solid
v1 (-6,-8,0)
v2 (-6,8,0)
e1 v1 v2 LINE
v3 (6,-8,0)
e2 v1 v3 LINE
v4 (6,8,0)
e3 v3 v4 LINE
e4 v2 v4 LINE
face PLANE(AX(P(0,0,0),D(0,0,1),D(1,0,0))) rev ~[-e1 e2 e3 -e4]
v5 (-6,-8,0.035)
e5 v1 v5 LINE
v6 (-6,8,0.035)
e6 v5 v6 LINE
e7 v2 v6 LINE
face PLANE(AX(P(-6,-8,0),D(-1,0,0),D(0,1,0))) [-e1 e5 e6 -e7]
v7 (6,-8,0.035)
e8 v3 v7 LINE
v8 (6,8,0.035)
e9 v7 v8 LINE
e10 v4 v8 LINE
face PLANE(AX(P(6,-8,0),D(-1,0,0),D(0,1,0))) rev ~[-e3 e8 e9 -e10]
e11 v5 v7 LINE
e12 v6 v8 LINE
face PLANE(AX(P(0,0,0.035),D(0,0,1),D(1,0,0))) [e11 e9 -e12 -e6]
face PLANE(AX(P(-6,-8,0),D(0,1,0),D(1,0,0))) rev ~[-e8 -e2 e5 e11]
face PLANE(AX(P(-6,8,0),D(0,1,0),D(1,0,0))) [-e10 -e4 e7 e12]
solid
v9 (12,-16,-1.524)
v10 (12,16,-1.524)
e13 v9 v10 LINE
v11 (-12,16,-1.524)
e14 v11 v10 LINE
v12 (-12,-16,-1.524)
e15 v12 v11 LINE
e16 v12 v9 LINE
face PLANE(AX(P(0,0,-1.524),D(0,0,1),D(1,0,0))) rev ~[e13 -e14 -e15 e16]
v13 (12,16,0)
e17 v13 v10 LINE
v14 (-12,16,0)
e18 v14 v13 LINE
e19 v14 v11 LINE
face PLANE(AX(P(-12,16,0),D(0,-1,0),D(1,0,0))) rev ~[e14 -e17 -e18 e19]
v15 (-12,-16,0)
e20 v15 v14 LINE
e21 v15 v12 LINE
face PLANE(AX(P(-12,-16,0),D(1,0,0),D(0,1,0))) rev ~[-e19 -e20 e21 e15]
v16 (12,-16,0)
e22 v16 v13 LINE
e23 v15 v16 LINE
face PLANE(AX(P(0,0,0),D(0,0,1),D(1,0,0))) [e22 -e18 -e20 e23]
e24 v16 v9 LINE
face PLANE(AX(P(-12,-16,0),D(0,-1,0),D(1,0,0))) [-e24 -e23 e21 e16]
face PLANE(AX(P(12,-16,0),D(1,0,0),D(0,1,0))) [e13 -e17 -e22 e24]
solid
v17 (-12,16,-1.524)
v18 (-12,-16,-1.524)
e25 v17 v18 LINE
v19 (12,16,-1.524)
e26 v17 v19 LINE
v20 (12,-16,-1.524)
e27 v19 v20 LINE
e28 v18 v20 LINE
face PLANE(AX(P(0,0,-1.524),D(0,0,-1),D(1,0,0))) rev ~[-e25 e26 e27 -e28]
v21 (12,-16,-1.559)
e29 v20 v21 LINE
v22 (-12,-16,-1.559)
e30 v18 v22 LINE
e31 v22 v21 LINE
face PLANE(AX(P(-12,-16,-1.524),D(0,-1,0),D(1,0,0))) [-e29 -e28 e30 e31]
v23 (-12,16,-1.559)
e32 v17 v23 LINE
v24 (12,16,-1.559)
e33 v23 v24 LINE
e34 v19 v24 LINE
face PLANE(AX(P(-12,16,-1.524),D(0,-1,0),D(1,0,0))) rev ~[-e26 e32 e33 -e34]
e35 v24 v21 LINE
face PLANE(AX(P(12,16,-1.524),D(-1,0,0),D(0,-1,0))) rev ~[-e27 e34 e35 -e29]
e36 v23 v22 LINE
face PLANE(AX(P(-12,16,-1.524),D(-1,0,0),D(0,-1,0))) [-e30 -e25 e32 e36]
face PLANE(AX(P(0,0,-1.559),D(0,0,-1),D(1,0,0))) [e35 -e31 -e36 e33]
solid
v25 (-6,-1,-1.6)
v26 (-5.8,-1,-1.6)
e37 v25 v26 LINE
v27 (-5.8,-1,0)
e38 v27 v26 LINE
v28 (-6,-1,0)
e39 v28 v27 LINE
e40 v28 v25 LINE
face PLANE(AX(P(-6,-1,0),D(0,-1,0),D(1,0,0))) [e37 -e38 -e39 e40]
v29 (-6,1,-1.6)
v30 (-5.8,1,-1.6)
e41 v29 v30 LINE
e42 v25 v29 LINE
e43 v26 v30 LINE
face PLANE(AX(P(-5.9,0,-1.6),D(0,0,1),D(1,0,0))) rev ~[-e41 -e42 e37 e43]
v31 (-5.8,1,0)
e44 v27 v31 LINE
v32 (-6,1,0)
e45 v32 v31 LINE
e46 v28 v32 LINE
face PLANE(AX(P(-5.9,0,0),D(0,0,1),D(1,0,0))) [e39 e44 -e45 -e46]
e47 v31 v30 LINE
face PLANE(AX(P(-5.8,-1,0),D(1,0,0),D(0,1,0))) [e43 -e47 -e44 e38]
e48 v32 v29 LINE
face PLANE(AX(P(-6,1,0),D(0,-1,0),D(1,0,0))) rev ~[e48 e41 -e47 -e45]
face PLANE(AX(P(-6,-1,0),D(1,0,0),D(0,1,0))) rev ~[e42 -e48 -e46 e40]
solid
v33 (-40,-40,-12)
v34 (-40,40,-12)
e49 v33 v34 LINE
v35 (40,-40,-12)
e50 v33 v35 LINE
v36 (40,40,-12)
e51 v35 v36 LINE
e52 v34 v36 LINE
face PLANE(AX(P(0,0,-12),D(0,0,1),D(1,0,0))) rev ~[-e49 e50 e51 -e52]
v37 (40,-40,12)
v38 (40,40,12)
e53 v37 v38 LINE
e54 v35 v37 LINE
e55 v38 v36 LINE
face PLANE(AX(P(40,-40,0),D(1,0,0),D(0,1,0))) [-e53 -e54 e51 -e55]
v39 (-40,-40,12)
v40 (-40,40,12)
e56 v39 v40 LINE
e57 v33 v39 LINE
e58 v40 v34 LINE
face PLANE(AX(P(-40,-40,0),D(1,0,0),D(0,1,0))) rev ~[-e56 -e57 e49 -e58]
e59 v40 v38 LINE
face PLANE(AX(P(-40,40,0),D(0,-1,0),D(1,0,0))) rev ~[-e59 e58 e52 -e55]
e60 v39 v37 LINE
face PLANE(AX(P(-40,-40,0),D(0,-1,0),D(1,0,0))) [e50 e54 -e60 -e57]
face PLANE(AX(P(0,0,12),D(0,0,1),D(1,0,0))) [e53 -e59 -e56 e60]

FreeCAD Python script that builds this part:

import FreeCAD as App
import Part
import Sketcher
Q = App.Units.Quantity

doc = App.newDocument("Part")
body = doc.addObject("PartDesign::Body", "Body")

sketch1 = body.newObject("Sketcher::SketchObject", "Sketch")
sketch1.AttachmentSupport = (doc.getObject("XY_Plane"), [""])
sketch1.MapMode = "FlatFace"
sketch1.addGeometry(Part.LineSegment(App.Vector(-6, 8, 0), App.Vector(-6, -8, 0)), False)
sketch1.addGeometry(Part.LineSegment(App.Vector(-6, -8, 0), App.Vector(6, -8, 0)), False)
sketch1.addGeometry(Part.LineSegment(App.Vector(6, -8, 0), App.Vector(6, 8, 0)), False)
sketch1.addGeometry(Part.LineSegment(App.Vector(6, 8, 0), App.Vector(-6, 8, 0)), False)
sketch1.addConstraint(Sketcher.Constraint("Coincident", 0, 2, 1, 1))
sketch1.addConstraint(Sketcher.Constraint("Coincident", 1, 2, 2, 1))
sketch1.addConstraint(Sketcher.Constraint("Coincident", 2, 2, 3, 1))
sketch1.addConstraint(Sketcher.Constraint("Coincident", 3, 2, 0, 1))
sketch1.addConstraint(Sketcher.Constraint("Vertical", 0))
sketch1.addConstraint(Sketcher.Constraint("Horizontal", 1))
sketch1.addConstraint(Sketcher.Constraint("Vertical", 2))
sketch1.addConstraint(Sketcher.Constraint("Horizontal", 3))
sketch1.addConstraint(Sketcher.Constraint("Symmetric", 0, 2, 2, 2, -1, 1))
sketch1.addConstraint(Sketcher.Constraint("DistanceX", 1, 1, 1, 2, Q("12 mm")))
sketch1.addConstraint(Sketcher.Constraint("DistanceY", 0, 2, 0, 1, Q("16 mm")))
pad1 = body.newObject("PartDesign::Pad", "Pad")
pad1.Profile = sketch1
pad1.Length = 0.035
body2 = doc.addObject("PartDesign::Body", "Body001")

sketch2 = body2.newObject("Sketcher::SketchObject", "Sketch001")
sketch2.AttachmentSupport = (doc.getObject("XY_Plane001"), [""])
sketch2.MapMode = "FlatFace"
sketch2.addGeometry(Part.LineSegment(App.Vector(-12, 16, 0), App.Vector(-12, -16, 0)), False)
sketch2.addGeometry(Part.LineSegment(App.Vector(-12, -16, 0), App.Vector(12, -16, 0)), False)
sketch2.addGeometry(Part.LineSegment(App.Vector(12, -16, 0), App.Vector(12, 16, 0)), False)
sketch2.addGeometry(Part.LineSegment(App.Vector(12, 16, 0), App.Vector(-12, 16, 0)), False)
sketch2.addConstraint(Sketcher.Constraint("Coincident", 0, 2, 1, 1))
sketch2.addConstraint(Sketcher.Constraint("Coincident", 1, 2, 2, 1))
sketch2.addConstraint(Sketcher.Constraint("Coincident", 2, 2, 3, 1))
sketch2.addConstraint(Sketcher.Constraint("Coincident", 3, 2, 0, 1))
sketch2.addConstraint(Sketcher.Constraint("Vertical", 0))
sketch2.addConstraint(Sketcher.Constraint("Horizontal", 1))
sketch2.addConstraint(Sketcher.Constraint("Vertical", 2))
sketch2.addConstraint(Sketcher.Constraint("Horizontal", 3))
sketch2.addConstraint(Sketcher.Constraint("Symmetric", 0, 2, 2, 2, -1, 1))
sketch2.addConstraint(Sketcher.Constraint("DistanceX", 1, 1, 1, 2, Q("24 mm")))
sketch2.addConstraint(Sketcher.Constraint("DistanceY", 0, 2, 0, 1, Q("32 mm")))
pad2 = body2.newObject("PartDesign::Pad", "Pad001")
pad2.Profile = sketch2
pad2.Length = 1.524
pad2.Reversed = True
body3 = doc.addObject("PartDesign::Body", "Body002")

sketch3 = body3.newObject("Sketcher::SketchObject", "Sketch002")
sketch3.AttachmentSupport = (doc.getObject("XY_Plane002"), [""])
sketch3.MapMode = "FlatFace"
sketch3.AttachmentOffset = App.Placement(App.Vector(0, 0, -1.524), App.Rotation())
sketch3.addGeometry(Part.LineSegment(App.Vector(-12, -16, 0), App.Vector(-12, 16, 0)), False)
sketch3.addGeometry(Part.LineSegment(App.Vector(-12, 16, 0), App.Vector(12, 16, 0)), False)
sketch3.addGeometry(Part.LineSegment(App.Vector(12, 16, 0), App.Vector(12, -16, 0)), False)
sketch3.addGeometry(Part.LineSegment(App.Vector(12, -16, 0), App.Vector(-12, -16, 0)), False)
sketch3.addConstraint(Sketcher.Constraint("Coincident", 0, 2, 1, 1))
sketch3.addConstraint(Sketcher.Constraint("Coincident", 1, 2, 2, 1))
sketch3.addConstraint(Sketcher.Constraint("Coincident", 2, 2, 3, 1))
sketch3.addConstraint(Sketcher.Constraint("Coincident", 3, 2, 0, 1))
sketch3.addConstraint(Sketcher.Constraint("Vertical", 0))
sketch3.addConstraint(Sketcher.Constraint("Horizontal", 1))
sketch3.addConstraint(Sketcher.Constraint("Vertical", 2))
sketch3.addConstraint(Sketcher.Constraint("Horizontal", 3))
sketch3.addConstraint(Sketcher.Constraint("Symmetric", 0, 2, 2, 2, -1, 1))
sketch3.addConstraint(Sketcher.Constraint("DistanceX", 1, 1, 1, 2, Q("24 mm")))
sketch3.addConstraint(Sketcher.Constraint("DistanceY", 0, 1, 0, 2, Q("32 mm")))
pad3 = body3.newObject("PartDesign::Pad", "Pad002")
pad3.Profile = sketch3
pad3.Length = 0.035
pad3.Reversed = True
body4 = doc.addObject("PartDesign::Body", "Body003")

sketch4 = body4.newObject("Sketcher::SketchObject", "Sketch003")
sketch4.AttachmentSupport = (doc.getObject("XY_Plane003"), [""])
sketch4.MapMode = "FlatFace"
sketch4.addGeometry(Part.LineSegment(App.Vector(-6, 1, 0), App.Vector(-6, -1, 0)), False)
sketch4.addGeometry(Part.LineSegment(App.Vector(-6, -1, 0), App.Vector(-5.8, -1, 0)), False)
sketch4.addGeometry(Part.LineSegment(App.Vector(-5.8, -1, 0), App.Vector(-5.8, 1, 0)), False)
sketch4.addGeometry(Part.LineSegment(App.Vector(-5.8, 1, 0), App.Vector(-6, 1, 0)), False)
sketch4.addConstraint(Sketcher.Constraint("Coincident", 0, 2, 1, 1))
sketch4.addConstraint(Sketcher.Constraint("Coincident", 1, 2, 2, 1))
sketch4.addConstraint(Sketcher.Constraint("Coincident", 2, 2, 3, 1))
sketch4.addConstraint(Sketcher.Constraint("Coincident", 3, 2, 0, 1))
sketch4.addConstraint(Sketcher.Constraint("Vertical", 0))
sketch4.addConstraint(Sketcher.Constraint("Horizontal", 1))
sketch4.addConstraint(Sketcher.Constraint("Vertical", 2))
sketch4.addConstraint(Sketcher.Constraint("Horizontal", 3))
sketch4.addConstraint(Sketcher.Constraint("DistanceY", 0, 2, 0, 1, Q("2 mm")))
sketch4.addConstraint(Sketcher.Constraint("DistanceX", 1, 1, 1, 2, Q("0.2 mm")))
sketch4.addConstraint(Sketcher.Constraint("DistanceX", 0, 2, -1, 1, Q("6 mm")))
sketch4.addConstraint(Sketcher.Constraint("DistanceY", 0, 2, -1, 1, Q("1 mm")))
pad4 = body4.newObject("PartDesign::Pad", "Pad003")
pad4.Profile = sketch4
pad4.Length = 1.6
pad4.Reversed = True
body5 = doc.addObject("PartDesign::Body", "Body004")
doc.recompute()

body4.Placement = App.Placement(App.Vector(0, 0, 0.035), App.Rotation(App.Vector(0, 0, 1), 0))
boolean = body5.newObject("PartDesign::Boolean", "Boolean")
boolean.Type = "Fuse"
boolean.addObjects([body4])
body6 = doc.addObject("PartDesign::Body", "Body005")

sketch5 = body6.newObject("Sketcher::SketchObject", "Sketch004")
sketch5.AttachmentSupport = (doc.getObject("XY_Plane005"), [""])
sketch5.MapMode = "FlatFace"
sketch5.addGeometry(Part.LineSegment(App.Vector(-40, 40, 0), App.Vector(-40, -40, 0)), False)
sketch5.addGeometry(Part.LineSegment(App.Vector(-40, -40, 0), App.Vector(40, -40, 0)), False)
sketch5.addGeometry(Part.LineSegment(App.Vector(40, -40, 0), App.Vector(40, 40, 0)), False)
sketch5.addGeometry(Part.LineSegment(App.Vector(40, 40, 0), App.Vector(-40, 40, 0)), False)
sketch5.addConstraint(Sketcher.Constraint("Coincident", 0, 2, 1, 1))
sketch5.addConstraint(Sketcher.Constraint("Coincident", 1, 2, 2, 1))
sketch5.addConstraint(Sketcher.Constraint("Coincident", 2, 2, 3, 1))
sketch5.addConstraint(Sketcher.Constraint("Coincident", 3, 2, 0, 1))
sketch5.addConstraint(Sketcher.Constraint("Vertical", 0))
sketch5.addConstraint(Sketcher.Constraint("Horizontal", 1))
sketch5.addConstraint(Sketcher.Constraint("Vertical", 2))
sketch5.addConstraint(Sketcher.Constraint("Horizontal", 3))
sketch5.addConstraint(Sketcher.Constraint("Symmetric", 0, 2, 2, 2, -1, 1))
sketch5.addConstraint(Sketcher.Constraint("Equal", 3, 0))
sketch5.addConstraint(Sketcher.Constraint("DistanceX", 1, 1, 1, 2, Q("80 mm")))
pad5 = body6.newObject("PartDesign::Pad", "Pad004")
pad5.Profile = sketch5
pad5.Length = 24
pad5.Midplane = True

doc.recompute()
